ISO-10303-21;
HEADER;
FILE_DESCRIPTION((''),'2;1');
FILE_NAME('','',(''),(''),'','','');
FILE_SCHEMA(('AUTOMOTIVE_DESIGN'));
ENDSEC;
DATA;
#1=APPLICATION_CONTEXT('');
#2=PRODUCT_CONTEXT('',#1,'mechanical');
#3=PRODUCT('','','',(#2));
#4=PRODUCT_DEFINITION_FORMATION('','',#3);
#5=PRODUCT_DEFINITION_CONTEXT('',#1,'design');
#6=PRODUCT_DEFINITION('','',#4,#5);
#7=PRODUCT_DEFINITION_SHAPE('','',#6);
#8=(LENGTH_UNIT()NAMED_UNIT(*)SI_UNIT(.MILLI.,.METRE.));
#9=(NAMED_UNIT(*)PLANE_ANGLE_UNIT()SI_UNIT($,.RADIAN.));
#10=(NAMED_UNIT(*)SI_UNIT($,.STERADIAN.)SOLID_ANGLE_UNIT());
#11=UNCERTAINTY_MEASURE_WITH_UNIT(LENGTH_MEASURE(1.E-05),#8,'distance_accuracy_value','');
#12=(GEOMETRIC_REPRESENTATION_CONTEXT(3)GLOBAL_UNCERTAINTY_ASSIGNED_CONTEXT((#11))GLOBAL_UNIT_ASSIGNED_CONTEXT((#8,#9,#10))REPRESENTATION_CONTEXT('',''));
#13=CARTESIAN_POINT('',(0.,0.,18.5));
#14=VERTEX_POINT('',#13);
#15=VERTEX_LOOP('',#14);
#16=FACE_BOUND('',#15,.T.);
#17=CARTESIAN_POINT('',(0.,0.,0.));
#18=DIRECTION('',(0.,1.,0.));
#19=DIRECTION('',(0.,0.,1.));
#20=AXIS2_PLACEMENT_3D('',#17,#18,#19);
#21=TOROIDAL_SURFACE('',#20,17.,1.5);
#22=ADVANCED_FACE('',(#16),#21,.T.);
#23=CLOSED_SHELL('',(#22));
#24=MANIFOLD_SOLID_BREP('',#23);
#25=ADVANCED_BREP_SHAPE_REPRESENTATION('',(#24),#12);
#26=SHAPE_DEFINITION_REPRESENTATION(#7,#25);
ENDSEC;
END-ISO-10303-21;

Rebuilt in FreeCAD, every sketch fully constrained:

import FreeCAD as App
import Part
import Sketcher
from FreeCAD import Vector
Q = App.Units.Quantity

doc = App.newDocument("Part")
params = doc.addObject("Spreadsheet::Sheet", "Params")
for row, (alias, value) in enumerate([
    ("sketch1_diameter", "3 mm"),
    ("revolution_angle", "360 deg"),
], start=1):
    params.set(f"A{row}", alias)
    params.set(f"B{row}", "=" + value)
    params.setAlias(f"B{row}", alias)

body = doc.addObject("PartDesign::Body", "Body")

sketch1 = body.newObject("Sketcher::SketchObject", "Sketch")
sketch1.AttachmentSupport = (doc.getObject("XY_Plane"), [""])
sketch1.MapMode = "FlatFace"
sketch1.addGeometry(Part.Circle(Vector(-17, 0, 0), Vector(0, 0, 1), 1.5), False)
sketch1.addConstraint(Sketcher.Constraint("PointOnObject", 0, 3, -1))
sketch1.addConstraint(Sketcher.Constraint("Diameter", 0, Q("3 mm")))
sketch1.addConstraint(Sketcher.Constraint("DistanceX", 0, 3, -1, 1, Q("17 mm")))
sketch1.setExpression("Constraints[1]", "Params.sketch1_diameter")
revolution = body.newObject("PartDesign::Revolution", "Revolution")
revolution.Profile = sketch1
revolution.ReferenceAxis = (sketch1, ["V_Axis"])
revolution.setExpression("Angle", "Params.revolution_angle")

doc.recompute()
